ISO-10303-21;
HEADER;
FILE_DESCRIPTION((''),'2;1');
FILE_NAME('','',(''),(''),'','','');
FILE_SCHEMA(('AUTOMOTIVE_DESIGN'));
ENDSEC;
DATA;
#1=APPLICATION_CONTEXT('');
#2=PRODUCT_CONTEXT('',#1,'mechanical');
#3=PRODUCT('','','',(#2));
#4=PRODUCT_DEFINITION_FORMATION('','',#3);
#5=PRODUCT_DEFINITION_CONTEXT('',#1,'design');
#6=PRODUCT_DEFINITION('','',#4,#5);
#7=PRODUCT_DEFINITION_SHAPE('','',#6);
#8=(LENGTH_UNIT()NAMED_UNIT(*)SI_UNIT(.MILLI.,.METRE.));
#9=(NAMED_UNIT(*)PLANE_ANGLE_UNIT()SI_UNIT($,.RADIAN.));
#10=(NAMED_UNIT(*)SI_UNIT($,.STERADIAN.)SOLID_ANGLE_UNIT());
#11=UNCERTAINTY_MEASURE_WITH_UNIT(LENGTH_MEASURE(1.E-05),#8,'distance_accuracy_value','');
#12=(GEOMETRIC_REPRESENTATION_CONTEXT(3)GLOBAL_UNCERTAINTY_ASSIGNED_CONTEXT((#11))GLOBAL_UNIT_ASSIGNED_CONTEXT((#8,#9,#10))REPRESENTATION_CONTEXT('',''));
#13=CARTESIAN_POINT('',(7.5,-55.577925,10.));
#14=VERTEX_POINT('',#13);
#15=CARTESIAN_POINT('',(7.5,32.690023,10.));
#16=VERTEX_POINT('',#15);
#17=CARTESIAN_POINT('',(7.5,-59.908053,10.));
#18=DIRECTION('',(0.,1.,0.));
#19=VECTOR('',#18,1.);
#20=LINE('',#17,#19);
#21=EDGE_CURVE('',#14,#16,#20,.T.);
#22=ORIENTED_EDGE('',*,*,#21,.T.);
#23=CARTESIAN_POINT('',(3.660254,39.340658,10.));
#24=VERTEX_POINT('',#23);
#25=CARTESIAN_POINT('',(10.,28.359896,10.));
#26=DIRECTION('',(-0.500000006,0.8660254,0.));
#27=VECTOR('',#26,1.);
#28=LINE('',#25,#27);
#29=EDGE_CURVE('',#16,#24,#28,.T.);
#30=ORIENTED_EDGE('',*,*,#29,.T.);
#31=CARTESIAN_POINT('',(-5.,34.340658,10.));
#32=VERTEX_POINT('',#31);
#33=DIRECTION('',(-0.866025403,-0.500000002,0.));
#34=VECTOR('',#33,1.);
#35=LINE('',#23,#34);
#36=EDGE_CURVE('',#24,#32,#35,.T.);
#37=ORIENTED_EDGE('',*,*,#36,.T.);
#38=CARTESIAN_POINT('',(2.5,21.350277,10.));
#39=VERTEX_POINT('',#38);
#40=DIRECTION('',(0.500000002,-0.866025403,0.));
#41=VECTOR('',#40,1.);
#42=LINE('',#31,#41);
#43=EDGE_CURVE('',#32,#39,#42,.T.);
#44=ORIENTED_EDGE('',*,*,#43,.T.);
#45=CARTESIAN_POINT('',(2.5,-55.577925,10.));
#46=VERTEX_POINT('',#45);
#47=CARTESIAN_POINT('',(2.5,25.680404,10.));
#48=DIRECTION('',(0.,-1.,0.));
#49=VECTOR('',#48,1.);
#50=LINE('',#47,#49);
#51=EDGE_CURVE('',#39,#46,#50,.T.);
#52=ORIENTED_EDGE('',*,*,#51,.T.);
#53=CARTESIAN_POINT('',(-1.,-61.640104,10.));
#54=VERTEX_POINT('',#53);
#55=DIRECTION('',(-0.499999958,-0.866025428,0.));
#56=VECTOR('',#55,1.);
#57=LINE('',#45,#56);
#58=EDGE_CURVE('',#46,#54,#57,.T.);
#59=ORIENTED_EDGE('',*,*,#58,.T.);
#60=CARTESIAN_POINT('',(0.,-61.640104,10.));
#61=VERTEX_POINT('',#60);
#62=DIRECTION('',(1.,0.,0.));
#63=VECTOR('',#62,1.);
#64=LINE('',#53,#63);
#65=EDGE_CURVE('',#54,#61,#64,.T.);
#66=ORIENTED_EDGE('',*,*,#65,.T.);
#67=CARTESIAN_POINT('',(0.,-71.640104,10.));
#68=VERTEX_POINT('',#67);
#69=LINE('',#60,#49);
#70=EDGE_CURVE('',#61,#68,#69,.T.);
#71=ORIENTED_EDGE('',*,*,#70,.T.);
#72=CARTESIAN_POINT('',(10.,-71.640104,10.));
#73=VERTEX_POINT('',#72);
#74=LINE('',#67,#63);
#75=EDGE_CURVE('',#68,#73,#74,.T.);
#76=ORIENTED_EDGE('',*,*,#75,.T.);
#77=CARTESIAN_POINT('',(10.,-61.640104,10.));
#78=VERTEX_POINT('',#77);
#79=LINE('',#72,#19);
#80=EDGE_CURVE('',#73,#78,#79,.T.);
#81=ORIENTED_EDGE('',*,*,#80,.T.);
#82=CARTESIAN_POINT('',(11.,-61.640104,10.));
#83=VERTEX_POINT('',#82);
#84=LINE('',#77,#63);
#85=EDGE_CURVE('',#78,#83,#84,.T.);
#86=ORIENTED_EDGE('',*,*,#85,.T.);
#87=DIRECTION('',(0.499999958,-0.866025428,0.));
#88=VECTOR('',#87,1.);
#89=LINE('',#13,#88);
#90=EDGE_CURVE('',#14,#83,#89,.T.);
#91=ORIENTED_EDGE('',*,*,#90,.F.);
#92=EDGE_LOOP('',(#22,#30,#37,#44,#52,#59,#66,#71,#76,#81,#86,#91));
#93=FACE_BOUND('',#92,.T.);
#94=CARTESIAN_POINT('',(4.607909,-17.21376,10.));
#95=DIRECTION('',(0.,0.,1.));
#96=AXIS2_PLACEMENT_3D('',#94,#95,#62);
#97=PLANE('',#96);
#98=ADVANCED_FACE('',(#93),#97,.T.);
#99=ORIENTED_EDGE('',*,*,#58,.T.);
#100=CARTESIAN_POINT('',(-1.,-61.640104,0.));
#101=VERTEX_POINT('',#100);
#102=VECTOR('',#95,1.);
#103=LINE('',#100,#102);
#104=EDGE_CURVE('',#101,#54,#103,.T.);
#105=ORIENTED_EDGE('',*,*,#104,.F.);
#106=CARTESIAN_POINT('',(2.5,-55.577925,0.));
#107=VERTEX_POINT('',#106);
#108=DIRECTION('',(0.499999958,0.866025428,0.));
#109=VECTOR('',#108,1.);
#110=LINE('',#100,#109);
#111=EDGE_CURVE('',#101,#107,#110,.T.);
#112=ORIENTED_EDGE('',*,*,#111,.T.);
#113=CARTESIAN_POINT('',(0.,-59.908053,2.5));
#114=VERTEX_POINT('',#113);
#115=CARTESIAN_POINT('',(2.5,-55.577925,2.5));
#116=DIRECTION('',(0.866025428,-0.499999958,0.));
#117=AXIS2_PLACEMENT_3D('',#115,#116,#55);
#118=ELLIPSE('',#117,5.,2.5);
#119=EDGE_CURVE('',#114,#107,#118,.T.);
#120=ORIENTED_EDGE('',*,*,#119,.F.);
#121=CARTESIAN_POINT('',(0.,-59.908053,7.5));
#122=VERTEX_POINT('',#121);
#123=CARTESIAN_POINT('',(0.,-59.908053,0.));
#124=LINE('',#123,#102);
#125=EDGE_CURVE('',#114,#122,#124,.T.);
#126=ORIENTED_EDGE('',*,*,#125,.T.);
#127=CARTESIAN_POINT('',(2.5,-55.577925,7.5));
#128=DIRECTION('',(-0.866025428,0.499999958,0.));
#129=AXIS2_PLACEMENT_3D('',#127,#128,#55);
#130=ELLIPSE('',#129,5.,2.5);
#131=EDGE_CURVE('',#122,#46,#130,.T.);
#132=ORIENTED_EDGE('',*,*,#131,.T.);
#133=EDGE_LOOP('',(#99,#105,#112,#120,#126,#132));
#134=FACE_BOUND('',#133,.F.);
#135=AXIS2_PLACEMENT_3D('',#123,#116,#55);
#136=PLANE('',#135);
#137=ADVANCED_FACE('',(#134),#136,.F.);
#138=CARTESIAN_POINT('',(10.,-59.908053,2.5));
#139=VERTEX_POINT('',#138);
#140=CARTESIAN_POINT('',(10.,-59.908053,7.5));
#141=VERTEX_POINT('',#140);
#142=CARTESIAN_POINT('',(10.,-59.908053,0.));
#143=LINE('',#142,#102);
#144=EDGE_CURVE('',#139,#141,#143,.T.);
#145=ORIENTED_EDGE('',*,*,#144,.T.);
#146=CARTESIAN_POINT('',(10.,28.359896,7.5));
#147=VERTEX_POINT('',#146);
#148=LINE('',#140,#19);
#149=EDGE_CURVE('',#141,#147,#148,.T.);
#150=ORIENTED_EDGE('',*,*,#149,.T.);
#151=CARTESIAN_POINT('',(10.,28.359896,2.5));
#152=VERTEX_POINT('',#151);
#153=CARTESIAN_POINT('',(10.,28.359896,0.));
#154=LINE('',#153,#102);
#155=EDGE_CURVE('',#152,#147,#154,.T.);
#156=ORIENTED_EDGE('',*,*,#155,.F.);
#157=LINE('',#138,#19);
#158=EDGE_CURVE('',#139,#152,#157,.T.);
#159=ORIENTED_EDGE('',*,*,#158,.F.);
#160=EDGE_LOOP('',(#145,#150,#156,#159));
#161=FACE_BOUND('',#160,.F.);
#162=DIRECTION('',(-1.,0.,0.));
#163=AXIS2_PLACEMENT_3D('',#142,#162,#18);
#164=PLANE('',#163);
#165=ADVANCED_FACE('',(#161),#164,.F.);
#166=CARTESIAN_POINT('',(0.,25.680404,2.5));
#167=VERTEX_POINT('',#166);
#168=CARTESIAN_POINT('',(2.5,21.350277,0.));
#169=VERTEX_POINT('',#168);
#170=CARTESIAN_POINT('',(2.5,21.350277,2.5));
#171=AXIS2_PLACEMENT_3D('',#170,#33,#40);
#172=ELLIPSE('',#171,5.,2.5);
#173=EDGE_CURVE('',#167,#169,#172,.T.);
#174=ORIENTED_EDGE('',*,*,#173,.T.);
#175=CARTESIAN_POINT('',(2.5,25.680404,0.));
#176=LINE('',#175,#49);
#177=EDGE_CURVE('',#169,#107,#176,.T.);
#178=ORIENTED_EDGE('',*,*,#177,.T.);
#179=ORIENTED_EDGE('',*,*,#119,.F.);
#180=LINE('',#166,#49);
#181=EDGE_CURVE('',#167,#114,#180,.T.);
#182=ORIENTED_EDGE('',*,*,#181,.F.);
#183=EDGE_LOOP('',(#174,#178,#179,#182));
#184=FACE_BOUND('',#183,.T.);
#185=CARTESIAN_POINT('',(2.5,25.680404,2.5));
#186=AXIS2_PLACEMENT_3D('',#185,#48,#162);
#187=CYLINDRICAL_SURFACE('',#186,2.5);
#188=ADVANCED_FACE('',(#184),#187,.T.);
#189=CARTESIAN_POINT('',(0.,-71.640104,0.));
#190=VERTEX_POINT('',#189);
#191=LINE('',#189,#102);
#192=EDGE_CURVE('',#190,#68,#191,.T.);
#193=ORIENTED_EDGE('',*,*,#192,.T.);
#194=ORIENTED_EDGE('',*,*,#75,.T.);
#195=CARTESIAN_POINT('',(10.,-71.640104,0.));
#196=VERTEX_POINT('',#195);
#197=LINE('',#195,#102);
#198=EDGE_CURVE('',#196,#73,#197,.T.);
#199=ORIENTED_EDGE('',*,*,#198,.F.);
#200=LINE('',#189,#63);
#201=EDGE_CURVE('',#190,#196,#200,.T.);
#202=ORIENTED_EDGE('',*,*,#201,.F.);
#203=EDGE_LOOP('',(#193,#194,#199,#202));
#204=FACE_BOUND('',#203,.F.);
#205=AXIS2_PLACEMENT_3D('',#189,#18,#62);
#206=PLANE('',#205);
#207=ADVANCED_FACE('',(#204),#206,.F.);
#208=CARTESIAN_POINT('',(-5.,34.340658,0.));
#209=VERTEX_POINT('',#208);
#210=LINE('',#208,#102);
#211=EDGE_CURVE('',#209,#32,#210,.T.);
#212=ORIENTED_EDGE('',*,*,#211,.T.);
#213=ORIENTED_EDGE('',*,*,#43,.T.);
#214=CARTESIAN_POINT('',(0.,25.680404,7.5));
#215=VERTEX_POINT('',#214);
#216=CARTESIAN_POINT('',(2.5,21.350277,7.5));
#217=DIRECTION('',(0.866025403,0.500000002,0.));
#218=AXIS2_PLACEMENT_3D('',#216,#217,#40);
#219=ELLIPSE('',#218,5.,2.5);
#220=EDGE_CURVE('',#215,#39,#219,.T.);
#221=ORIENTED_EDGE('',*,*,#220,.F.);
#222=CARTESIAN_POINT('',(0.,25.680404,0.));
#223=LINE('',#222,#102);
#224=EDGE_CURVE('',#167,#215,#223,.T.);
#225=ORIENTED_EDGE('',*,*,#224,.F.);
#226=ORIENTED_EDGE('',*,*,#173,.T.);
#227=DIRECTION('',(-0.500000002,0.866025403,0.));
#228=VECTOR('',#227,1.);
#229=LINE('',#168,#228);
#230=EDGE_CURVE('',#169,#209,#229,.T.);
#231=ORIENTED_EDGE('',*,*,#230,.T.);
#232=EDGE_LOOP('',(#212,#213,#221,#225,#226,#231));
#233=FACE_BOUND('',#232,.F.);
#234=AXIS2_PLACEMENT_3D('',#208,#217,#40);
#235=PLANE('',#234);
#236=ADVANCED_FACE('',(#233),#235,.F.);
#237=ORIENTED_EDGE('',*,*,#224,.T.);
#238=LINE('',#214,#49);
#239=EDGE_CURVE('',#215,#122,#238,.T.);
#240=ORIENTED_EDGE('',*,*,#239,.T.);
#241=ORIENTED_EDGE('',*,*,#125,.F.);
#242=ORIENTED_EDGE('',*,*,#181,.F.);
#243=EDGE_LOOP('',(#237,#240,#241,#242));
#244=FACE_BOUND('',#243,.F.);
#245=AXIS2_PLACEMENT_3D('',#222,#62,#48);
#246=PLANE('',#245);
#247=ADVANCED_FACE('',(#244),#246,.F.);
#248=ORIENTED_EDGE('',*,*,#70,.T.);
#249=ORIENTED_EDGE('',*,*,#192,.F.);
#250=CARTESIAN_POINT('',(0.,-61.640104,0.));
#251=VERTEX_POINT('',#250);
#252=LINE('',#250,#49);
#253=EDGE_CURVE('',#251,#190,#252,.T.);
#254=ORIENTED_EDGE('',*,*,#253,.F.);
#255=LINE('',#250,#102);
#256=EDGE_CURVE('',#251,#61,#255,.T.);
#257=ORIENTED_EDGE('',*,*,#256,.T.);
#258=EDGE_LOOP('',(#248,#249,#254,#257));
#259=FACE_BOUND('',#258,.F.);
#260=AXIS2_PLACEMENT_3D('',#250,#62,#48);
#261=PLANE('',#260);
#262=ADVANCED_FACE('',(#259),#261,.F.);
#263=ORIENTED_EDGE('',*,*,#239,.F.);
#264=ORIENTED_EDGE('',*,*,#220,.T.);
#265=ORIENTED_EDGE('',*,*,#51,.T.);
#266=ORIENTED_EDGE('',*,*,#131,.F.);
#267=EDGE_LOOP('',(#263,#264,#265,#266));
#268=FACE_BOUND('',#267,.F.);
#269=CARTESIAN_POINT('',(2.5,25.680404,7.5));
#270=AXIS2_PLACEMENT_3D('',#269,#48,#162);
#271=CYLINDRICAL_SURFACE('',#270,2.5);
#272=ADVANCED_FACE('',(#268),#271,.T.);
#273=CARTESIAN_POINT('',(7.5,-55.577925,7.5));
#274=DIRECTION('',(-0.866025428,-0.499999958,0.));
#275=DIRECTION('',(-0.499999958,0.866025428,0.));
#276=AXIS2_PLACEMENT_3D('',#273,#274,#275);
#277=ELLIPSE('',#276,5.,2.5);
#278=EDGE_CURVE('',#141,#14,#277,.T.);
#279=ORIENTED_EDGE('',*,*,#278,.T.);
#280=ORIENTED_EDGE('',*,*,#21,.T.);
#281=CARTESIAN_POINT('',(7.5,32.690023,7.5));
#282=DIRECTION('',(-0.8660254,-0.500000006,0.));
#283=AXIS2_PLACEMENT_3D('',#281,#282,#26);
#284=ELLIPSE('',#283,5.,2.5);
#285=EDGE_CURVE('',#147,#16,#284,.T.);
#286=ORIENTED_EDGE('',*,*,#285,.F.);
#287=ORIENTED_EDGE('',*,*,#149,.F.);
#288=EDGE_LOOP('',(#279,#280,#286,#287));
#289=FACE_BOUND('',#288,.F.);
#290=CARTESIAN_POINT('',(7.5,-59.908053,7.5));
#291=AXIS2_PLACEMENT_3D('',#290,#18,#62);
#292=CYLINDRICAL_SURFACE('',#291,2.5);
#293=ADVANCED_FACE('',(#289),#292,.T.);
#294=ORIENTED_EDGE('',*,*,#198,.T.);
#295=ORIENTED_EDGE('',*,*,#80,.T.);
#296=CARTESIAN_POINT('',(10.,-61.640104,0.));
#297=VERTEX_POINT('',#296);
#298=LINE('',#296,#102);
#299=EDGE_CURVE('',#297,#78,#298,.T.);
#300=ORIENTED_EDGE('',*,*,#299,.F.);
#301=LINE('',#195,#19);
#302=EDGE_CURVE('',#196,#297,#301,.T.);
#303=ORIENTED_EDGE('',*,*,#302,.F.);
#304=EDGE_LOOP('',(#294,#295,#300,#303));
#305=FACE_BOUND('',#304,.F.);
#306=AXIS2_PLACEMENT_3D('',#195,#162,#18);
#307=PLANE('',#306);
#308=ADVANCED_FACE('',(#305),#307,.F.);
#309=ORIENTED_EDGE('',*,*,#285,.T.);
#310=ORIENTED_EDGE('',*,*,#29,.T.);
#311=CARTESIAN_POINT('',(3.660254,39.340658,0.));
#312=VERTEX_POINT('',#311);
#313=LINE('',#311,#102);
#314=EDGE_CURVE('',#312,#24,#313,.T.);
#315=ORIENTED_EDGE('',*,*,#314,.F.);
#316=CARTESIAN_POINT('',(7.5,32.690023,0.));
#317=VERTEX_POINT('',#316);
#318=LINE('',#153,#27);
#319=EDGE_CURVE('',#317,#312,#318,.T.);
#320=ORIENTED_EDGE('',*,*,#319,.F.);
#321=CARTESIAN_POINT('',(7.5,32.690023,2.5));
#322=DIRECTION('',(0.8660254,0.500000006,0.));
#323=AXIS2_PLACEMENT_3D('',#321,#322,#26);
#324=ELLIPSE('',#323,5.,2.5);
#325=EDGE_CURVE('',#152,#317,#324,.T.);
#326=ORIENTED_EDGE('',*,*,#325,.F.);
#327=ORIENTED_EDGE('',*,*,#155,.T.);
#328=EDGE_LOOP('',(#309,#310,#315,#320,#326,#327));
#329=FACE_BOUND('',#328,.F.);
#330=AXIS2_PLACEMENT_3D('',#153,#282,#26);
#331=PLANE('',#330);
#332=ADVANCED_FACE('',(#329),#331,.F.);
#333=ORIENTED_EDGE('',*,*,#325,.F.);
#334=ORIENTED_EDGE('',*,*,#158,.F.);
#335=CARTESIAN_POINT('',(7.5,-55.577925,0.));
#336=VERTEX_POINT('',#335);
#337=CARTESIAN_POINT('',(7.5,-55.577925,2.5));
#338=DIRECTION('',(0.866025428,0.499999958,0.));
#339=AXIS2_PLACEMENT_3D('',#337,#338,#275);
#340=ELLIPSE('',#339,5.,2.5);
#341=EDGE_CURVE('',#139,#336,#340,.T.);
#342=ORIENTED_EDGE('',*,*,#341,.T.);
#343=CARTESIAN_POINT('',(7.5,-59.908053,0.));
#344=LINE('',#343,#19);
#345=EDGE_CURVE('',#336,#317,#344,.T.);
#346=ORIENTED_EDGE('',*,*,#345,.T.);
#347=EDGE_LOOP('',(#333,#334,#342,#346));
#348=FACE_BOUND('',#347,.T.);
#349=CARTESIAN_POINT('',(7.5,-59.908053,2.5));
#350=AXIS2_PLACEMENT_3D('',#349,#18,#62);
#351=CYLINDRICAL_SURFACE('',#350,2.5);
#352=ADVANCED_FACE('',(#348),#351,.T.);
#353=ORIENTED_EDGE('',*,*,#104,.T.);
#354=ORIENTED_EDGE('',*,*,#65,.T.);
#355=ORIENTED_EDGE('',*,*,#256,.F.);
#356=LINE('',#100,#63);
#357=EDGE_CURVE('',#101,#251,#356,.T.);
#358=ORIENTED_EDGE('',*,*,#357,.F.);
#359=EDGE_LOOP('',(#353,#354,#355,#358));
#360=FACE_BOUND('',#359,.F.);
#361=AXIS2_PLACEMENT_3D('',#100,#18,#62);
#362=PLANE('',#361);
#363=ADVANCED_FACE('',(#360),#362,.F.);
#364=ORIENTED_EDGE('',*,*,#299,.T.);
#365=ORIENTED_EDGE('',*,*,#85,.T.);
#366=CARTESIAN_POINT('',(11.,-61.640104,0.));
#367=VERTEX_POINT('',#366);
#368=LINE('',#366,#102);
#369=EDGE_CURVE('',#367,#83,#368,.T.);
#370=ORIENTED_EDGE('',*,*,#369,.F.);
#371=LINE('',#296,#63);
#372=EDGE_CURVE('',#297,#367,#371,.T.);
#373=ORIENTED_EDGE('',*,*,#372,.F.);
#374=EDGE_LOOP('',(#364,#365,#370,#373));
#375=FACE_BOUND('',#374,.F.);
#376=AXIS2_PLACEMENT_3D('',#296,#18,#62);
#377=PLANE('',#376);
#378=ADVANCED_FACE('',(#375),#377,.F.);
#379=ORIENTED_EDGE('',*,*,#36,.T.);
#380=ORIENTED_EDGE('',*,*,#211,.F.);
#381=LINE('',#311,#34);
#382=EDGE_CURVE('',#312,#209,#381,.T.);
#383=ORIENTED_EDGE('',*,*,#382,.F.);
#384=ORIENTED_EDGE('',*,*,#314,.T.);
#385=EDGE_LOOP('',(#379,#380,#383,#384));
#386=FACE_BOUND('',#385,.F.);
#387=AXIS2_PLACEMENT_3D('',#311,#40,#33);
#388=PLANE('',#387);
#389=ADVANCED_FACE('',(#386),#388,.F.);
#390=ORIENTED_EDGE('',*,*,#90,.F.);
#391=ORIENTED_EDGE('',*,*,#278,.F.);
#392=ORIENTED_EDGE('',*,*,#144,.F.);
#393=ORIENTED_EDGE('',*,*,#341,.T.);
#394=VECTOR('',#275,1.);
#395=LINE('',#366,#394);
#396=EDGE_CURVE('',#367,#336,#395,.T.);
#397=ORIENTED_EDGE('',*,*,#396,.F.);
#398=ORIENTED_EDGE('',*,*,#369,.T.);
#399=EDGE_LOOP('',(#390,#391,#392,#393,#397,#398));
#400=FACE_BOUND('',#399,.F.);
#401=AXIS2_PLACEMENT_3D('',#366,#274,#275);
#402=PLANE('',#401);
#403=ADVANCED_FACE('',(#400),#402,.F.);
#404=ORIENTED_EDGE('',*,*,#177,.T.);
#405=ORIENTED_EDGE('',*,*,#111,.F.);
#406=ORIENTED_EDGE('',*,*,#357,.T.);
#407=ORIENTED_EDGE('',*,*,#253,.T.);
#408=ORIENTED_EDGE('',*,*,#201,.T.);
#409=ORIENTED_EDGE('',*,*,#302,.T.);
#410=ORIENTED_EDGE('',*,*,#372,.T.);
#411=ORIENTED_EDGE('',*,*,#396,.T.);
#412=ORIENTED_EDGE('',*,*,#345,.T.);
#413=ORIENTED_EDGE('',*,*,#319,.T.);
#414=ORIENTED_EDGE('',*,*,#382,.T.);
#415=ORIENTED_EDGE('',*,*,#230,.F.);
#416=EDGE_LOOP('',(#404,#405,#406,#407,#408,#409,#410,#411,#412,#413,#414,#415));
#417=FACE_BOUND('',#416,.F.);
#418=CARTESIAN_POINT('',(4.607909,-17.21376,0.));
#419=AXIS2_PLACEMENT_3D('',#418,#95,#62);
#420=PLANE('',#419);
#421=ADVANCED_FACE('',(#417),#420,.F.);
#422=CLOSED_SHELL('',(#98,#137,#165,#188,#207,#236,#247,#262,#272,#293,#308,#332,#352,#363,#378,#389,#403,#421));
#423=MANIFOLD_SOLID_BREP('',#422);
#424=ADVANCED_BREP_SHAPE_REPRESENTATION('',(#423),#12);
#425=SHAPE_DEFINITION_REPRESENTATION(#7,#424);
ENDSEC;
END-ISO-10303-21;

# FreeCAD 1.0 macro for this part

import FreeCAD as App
import Part
import Sketcher
Q = App.Units.Quantity


def edges_at(feature, points):
    """Names of the edges that pass closest to the given points."""
    edges = feature.Shape.Edges
    near = lambda p: min(range(len(edges)), key=lambda i: edges[i].distToShape(Part.Vertex(*p))[0])
    return sorted({f"Edge{near(p) + 1}" for p in points})


def add_polygon(sketch, points):
    """Adds a closed chain of lines whose ends are joined by coincident constraints."""
    first, n = sketch.GeometryCount, len(points)
    for a, b in zip(points, points[1:] + points[:1]):
        sketch.addGeometry(Part.LineSegment(App.Vector(*a, 0), App.Vector(*b, 0)), False)
    for i in range(n):
        sketch.addConstraint(Sketcher.Constraint("Coincident", first + i, 2, first + (i + 1) % n, 1))

doc = App.newDocument("Part")
params = doc.addObject("Spreadsheet::Sheet", "Params")
for row, (alias, value) in enumerate([
    ("sketch1_width", "10 mm"),
    ("sketch1_width2", "1 mm"),
    ("sketch1_length", "10 mm"),
    ("pad1_length", "10 mm"),
    ("fillet_radius", "2.5 mm"),
], start=1):
    params.set(f"A{row}", alias)
    params.set(f"B{row}", "=" + value)
    params.setAlias(f"B{row}", alias)

body = doc.addObject("PartDesign::Body", "Body")

# Sketch on XY plane
sketch1 = body.newObject("Sketcher::SketchObject", "Sketch")
sketch1.AttachmentSupport = (doc.getObject("XY_Plane"), [""])
sketch1.MapMode = "FlatFace"
add_polygon(sketch1, [(0, -61.640104), (0, -71.640104), (10, -71.640104), (10, -61.640104), (11, -61.640104), (10, -59.908053), (10, 28.359896), (3.660254, 39.340658), (-5, 34.340658), (0, 25.680404), (0, -59.908053), (-1, -61.640104)])  # lines 0-11
sketch1.addConstraint(Sketcher.Constraint("Vertical", 0))
sketch1.addConstraint(Sketcher.Constraint("Horizontal", 1))
sketch1.addConstraint(Sketcher.Constraint("Vertical", 2))
sketch1.addConstraint(Sketcher.Constraint("Horizontal", 3))
sketch1.addConstraint(Sketcher.Constraint("Vertical", 5))
sketch1.addConstraint(Sketcher.Constraint("Vertical", 9))
sketch1.addConstraint(Sketcher.Constraint("Horizontal", 11))
sketch1.addConstraint(Sketcher.Constraint("PointOnObject", 0, 2, -2))
sketch1.addConstraint(Sketcher.Constraint("PointOnObject", 8, 2, -2))
sketch1.addConstraint(Sketcher.Constraint("Parallel", 4, 6))
sketch1.addConstraint(Sketcher.Constraint("Perpendicular", 6, 7))
sketch1.addConstraint(Sketcher.Constraint("Perpendicular", 7, 8))
sketch1.addConstraint(Sketcher.Constraint("Horizontal", 4, 2, 9, 2))
sketch1.addConstraint(Sketcher.Constraint("Horizontal", 3, 2, 10, 2))
sketch1.addConstraint(Sketcher.Constraint("Vertical", 2, 2, 4, 2))
sketch1.addConstraint(Sketcher.Constraint("Equal", 3, 11))
sketch1.addConstraint(Sketcher.Constraint("Equal", 1, 0))
sketch1.addConstraint(Sketcher.Constraint("Equal", 7, 8))
sketch1.addConstraint(Sketcher.Constraint("DistanceX", 1, 1, 1, 2, 10.0))
sketch1.addConstraint(Sketcher.Constraint("DistanceX", 3, 1, 3, 2, 1.0))
sketch1.addConstraint(Sketcher.Constraint("Angle", 4, Q("119.999997 deg")))
sketch1.addConstraint(Sketcher.Constraint("Distance", 7, 10.0))
sketch1.addConstraint(Sketcher.Constraint("DistanceY", 2, 2, 5, 2, 90.0))
sketch1.addConstraint(Sketcher.Constraint("DistanceY", 0, 2, -1, 1, 71.640104))
sketch1.setExpression("Constraints[30]", "Params.sketch1_width")
sketch1.setExpression("Constraints[31]", "Params.sketch1_width2")
sketch1.setExpression("Constraints[33]", "Params.sketch1_length")
pad1 = body.newObject("PartDesign::Pad", "Pad")
pad1.Profile = sketch1
pad1.setExpression("Length", "Params.pad1_length")
doc.recompute()

fillet = body.newObject("PartDesign::Fillet", "Fillet")
fillet.Base = (pad1, edges_at(pad1, [
    (0, -17.114, 10),
    (0, -17.114, 0),
    (10, -15.774, 10),
    (10, -15.774, 0),
]))
fillet.setExpression("Radius", "Params.fillet_radius")

doc.recompute()
